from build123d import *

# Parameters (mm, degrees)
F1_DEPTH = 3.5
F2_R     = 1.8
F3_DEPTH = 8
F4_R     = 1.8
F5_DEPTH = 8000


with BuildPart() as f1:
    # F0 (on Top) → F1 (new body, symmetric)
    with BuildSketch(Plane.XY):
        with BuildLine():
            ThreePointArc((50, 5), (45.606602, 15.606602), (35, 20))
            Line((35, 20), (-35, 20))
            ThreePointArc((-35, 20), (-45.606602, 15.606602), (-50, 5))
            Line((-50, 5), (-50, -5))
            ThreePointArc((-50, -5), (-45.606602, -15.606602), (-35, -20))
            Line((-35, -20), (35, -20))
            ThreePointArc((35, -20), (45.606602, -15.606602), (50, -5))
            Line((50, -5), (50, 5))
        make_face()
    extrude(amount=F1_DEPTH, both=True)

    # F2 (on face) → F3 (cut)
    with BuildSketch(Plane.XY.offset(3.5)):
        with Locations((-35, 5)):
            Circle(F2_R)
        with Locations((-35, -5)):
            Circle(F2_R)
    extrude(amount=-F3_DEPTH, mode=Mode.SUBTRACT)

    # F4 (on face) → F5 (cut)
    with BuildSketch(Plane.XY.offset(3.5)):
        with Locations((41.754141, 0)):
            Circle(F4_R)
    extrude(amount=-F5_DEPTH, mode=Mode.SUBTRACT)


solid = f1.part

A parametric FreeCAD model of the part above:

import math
import FreeCAD as App
import Part
import Sketcher

V = App.Vector

doc = App.newDocument("Part")
body = doc.addObject("PartDesign::Body", "Body")

sketch1 = body.newObject("Sketcher::SketchObject", "Sketch")
sketch1.AttachmentSupport = (doc.getObject("XY_Plane"), [""])
sketch1.MapMode = "FlatFace"
sketch1.addGeometry([
    Part.ArcOfCircle(Part.Circle(V(35.000001, 5.000001, 0), V(0, 0, 1), 14.999999), math.radians(-0.000004), math.radians(90.000004)),
    Part.LineSegment(V(35, 20, 0), V(-35, 20, 0)),
    Part.ArcOfCircle(Part.Circle(V(-35.000001, 5.000001, 0), V(0, 0, 1), 14.999999), math.radians(89.999996), math.radians(180.000004)),
    Part.LineSegment(V(-50, 5, 0), V(-50, -5, 0)),
    Part.ArcOfCircle(Part.Circle(V(-35.000001, -5.000001, 0), V(0, 0, 1), 14.999999), math.radians(179.999996), math.radians(270.000004)),
    Part.LineSegment(V(-35, -20, 0), V(35, -20, 0)),
    Part.ArcOfCircle(Part.Circle(V(35.000001, -5.000001, 0), V(0, 0, 1), 14.999999), math.radians(-90.000004), math.radians(0.000004)),
    Part.LineSegment(V(50, -5, 0), V(50, 5, 0)),
], False)
sketch1.addConstraint([
    Sketcher.Constraint("Tangent", 0, 2, 1, 1),
    Sketcher.Constraint("Tangent", 1, 2, 2, 1),
    Sketcher.Constraint("Tangent", 2, 2, 3, 1),
    Sketcher.Constraint("Tangent", 3, 2, 4, 1),
    Sketcher.Constraint("Tangent", 4, 2, 5, 1),
    Sketcher.Constraint("Tangent", 5, 2, 6, 1),
    Sketcher.Constraint("Tangent", 6, 2, 7, 1),
    Sketcher.Constraint("Tangent", 7, 2, 0, 1),
    Sketcher.Constraint("Horizontal", 1),
    Sketcher.Constraint("Vertical", 3),
    Sketcher.Constraint("Horizontal", 5),
    Sketcher.Constraint("Vertical", 7),
    Sketcher.Constraint("Equal", 0, 2),
    Sketcher.Constraint("Equal", 2, 4),
    Sketcher.Constraint("Equal", 4, 6),
    Sketcher.Constraint("Symmetric", 0, 3, 4, 3, -1, 1),
    Sketcher.Constraint("Radius", 0, 14.999999),
    Sketcher.Constraint("DistanceX", 1, 2, 1, 1, 70.0),
    Sketcher.Constraint("DistanceY", 3, 2, 3, 1, 10.0),
])
pad1 = body.newObject("PartDesign::Pad", "Pad")
pad1.Profile = sketch1
pad1.Length = 7
pad1.Midplane = True

sketch2 = body.newObject("Sketcher::SketchObject", "Sketch001")
sketch2.AttachmentSupport = (doc.getObject("XY_Plane"), [""])
sketch2.MapMode = "FlatFace"
sketch2.AttachmentOffset = App.Placement(V(0, 0, 3.5), App.Rotation())
sketch2.addGeometry([
    Part.Circle(V(-35, 5, 0), V(0, 0, 1), 1.8),
    Part.Circle(V(-35, -5, 0), V(0, 0, 1), 1.8),
], False)
sketch2.addConstraint([
    Sketcher.Constraint("Equal", 0, 1),
    Sketcher.Constraint("Symmetric", 0, 3, 1, 3, -1),
    Sketcher.Constraint("Diameter", 0, 3.6),
    Sketcher.Constraint("DistanceX", 0, 3, -1, 1, 35.0),
    Sketcher.Constraint("DistanceY", -1, 1, 0, 3, 5.0),
])
pocket1 = body.newObject("PartDesign::Pocket", "Pocket")
pocket1.Profile = sketch2
pocket1.Length = 8

sketch3 = body.newObject("Sketcher::SketchObject", "Sketch002")
sketch3.AttachmentSupport = (doc.getObject("XY_Plane"), [""])
sketch3.MapMode = "FlatFace"
sketch3.AttachmentOffset = App.Placement(V(0, 0, 3.5), App.Rotation())
sketch3.addGeometry(Part.Circle(V(41.754141, 0, 0), V(0, 0, 1), 1.8), False)
sketch3.addConstraint([
    Sketcher.Constraint("PointOnObject", 0, 3, -1),
    Sketcher.Constraint("Diameter", 0, 3.6),
    Sketcher.Constraint("DistanceX", -1, 1, 0, 3, 41.754141),
])
pocket2 = body.newObject("PartDesign::Pocket", "Pocket001")
pocket2.Profile = sketch3
pocket2.Length = 8000

doc.recompute()
